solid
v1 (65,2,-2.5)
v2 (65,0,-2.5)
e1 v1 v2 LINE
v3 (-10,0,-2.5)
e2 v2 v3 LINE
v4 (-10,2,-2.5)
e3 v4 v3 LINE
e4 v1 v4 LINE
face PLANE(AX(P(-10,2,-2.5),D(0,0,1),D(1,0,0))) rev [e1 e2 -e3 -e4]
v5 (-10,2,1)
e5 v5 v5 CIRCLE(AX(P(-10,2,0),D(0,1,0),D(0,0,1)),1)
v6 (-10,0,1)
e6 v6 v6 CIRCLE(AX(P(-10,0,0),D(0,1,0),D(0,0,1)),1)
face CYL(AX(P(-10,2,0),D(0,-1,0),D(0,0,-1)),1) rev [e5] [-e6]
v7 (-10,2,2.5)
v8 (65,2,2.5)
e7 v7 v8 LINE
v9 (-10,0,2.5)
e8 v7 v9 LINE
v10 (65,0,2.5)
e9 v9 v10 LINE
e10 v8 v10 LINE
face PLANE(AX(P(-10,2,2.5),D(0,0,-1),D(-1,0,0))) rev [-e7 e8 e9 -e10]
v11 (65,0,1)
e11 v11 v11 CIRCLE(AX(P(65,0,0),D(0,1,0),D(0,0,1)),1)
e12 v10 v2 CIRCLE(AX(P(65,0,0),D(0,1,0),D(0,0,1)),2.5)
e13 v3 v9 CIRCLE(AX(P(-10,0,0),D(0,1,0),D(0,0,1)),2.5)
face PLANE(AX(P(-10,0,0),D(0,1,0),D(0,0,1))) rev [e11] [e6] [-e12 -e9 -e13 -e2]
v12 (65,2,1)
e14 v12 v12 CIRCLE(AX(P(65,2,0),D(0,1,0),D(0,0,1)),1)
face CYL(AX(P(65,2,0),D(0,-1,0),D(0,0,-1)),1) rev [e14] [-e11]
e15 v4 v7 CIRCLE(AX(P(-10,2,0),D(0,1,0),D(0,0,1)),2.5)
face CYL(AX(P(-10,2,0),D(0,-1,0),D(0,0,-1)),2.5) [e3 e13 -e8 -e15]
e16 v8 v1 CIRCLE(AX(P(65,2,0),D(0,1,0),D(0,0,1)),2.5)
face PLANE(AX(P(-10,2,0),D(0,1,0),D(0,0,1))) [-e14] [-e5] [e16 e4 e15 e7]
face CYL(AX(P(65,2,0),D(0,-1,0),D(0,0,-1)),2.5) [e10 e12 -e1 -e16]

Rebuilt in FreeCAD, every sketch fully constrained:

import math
import FreeCAD as App
import Part
import Sketcher

V = App.Vector
Q = App.Units.Quantity

doc = App.newDocument("Part")
body = doc.addObject("PartDesign::Body", "Body")

# Sketch on XZ plane
sketch1 = body.newObject("Sketcher::SketchObject", "Sketch")
sketch1.AttachmentSupport = (doc.getObject("XZ_Plane"), [""])
sketch1.MapMode = "FlatFace"
sketch1.addGeometry([
    Part.LineSegment(V(65, -2.5, 0), V(-10, -2.5, 0)),  # 0
    Part.ArcOfCircle(Part.Circle(V(-10, 0, 0), V(0, 0, 1), 2.5), math.radians(90), math.radians(270)),  # 1
    Part.LineSegment(V(-10, 2.5, 0), V(65, 2.5, 0)),  # 2
    Part.ArcOfCircle(Part.Circle(V(65, 0, 0), V(0, 0, 1), 2.5), math.radians(-90), math.radians(90)),  # 3
    Part.Circle(V(65, 0, 0), V(0, 0, 1), 1),  # 4
    Part.Circle(V(-10, 0, 0), V(0, 0, 1), 1),  # 5
], False)
sketch1.addConstraint([
    Sketcher.Constraint("Tangent", 0, 2, 1, 2),
    Sketcher.Constraint("Tangent", 1, 1, 2, 1),
    Sketcher.Constraint("Tangent", 2, 2, 3, 2),
    Sketcher.Constraint("Tangent", 3, 1, 0, 1),
    Sketcher.Constraint("Horizontal", 0),
    Sketcher.Constraint("Horizontal", 2),
    Sketcher.Constraint("Coincident", 4, 3, 3, 3),
    Sketcher.Constraint("Coincident", 5, 3, 1, 3),
    Sketcher.Constraint("Equal", 4, 5),
    Sketcher.Constraint("PointOnObject", 1, 3, -1),
    Sketcher.Constraint("Diameter", 4, Q("2 mm")),
    Sketcher.Constraint("Radius", 1, Q("2.5 mm")),
    Sketcher.Constraint("DistanceX", 0, 2, 0, 1, Q("75 mm")),
    Sketcher.Constraint("DistanceX", 1, 3, -1, 1, Q("10 mm")),
])
pad1 = body.newObject("PartDesign::Pad", "Pad")
pad1.Profile = sketch1
pad1.Length = 2
pad1.Reversed = True

doc.recompute()
